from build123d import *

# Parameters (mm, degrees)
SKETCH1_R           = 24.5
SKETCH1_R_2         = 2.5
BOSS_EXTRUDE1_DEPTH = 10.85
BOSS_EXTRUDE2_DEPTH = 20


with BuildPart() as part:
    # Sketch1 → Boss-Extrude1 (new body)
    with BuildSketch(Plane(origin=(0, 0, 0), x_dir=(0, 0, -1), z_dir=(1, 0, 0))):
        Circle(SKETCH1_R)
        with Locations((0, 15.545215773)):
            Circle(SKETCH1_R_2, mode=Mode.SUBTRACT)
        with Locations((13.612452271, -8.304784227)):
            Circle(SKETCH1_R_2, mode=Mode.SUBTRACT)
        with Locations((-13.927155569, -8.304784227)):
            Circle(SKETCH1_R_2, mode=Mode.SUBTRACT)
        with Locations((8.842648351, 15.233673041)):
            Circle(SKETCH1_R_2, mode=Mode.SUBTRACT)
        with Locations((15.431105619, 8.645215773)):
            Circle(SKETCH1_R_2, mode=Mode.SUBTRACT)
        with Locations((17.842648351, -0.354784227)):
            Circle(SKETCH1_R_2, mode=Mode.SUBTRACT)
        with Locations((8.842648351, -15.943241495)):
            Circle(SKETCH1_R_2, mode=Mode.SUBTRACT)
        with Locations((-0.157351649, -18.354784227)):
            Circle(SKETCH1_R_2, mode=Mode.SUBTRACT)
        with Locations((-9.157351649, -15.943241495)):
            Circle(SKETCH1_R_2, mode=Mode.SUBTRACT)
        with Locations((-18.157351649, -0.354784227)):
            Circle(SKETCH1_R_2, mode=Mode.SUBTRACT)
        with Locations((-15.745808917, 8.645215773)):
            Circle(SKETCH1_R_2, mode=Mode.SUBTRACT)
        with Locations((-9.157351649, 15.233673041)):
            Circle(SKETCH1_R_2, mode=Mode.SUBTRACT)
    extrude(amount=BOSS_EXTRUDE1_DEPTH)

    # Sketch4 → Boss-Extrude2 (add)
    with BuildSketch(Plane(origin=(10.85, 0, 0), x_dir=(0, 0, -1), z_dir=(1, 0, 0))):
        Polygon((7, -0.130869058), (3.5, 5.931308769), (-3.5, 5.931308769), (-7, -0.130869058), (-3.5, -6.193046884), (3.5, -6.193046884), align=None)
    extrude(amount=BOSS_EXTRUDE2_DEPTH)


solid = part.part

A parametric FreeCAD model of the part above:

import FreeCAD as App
import Part
import Sketcher
Q = App.Units.Quantity


def add_polygon(sketch, points):
    """Adds a closed chain of lines whose ends are joined by coincident constraints."""
    first, n = sketch.GeometryCount, len(points)
    for a, b in zip(points, points[1:] + points[:1]):
        sketch.addGeometry(Part.LineSegment(App.Vector(*a, 0), App.Vector(*b, 0)), False)
    for i in range(n):
        sketch.addConstraint(Sketcher.Constraint("Coincident", first + i, 2, first + (i + 1) % n, 1))

doc = App.newDocument("Part")
body = doc.addObject("PartDesign::Body", "Body")

# Sketch on YZ plane
sketch1 = body.newObject("Sketcher::SketchObject", "Sketch")
sketch1.AttachmentSupport = (doc.getObject("YZ_Plane"), [""])
sketch1.MapMode = "FlatFace"
sketch1.addGeometry([
    Part.Circle(App.Vector(0, 0, 0), App.Vector(0, 0, 1), 24.5),  # 0
    Part.Circle(App.Vector(-15.943241, 9.157352, 0), App.Vector(0, 0, 1), 2.5),  # 1
    Part.Circle(App.Vector(-8.304784, 13.927156, 0), App.Vector(0, 0, 1), 2.5),  # 2
    Part.Circle(App.Vector(-18.354784, 0.157352, 0), App.Vector(0, 0, 1), 2.5),  # 3
    Part.Circle(App.Vector(-15.943241, -8.842648, 0), App.Vector(0, 0, 1), 2.5),  # 4
    Part.Circle(App.Vector(-8.304784, -13.612452, 0), App.Vector(0, 0, 1), 2.5),  # 5
    Part.Circle(App.Vector(-0.354784, 18.157352, 0), App.Vector(0, 0, 1), 2.5),  # 6
    Part.Circle(App.Vector(8.645216, 15.745809, 0), App.Vector(0, 0, 1), 2.5),  # 7
    Part.Circle(App.Vector(15.233673, 9.157352, 0), App.Vector(0, 0, 1), 2.5),  # 8
    Part.Circle(App.Vector(-0.354784, -17.842648, 0), App.Vector(0, 0, 1), 2.5),  # 9
    Part.Circle(App.Vector(15.545216, 0, 0), App.Vector(0, 0, 1), 2.5),  # 10
    Part.Circle(App.Vector(15.233673, -8.842648, 0), App.Vector(0, 0, 1), 2.5),  # 11
    Part.Circle(App.Vector(8.645216, -15.431106, 0), App.Vector(0, 0, 1), 2.5),  # 12
], False)
sketch1.addConstraint([
    Sketcher.Constraint("Coincident", 0, 3, -1, 1),
    Sketcher.Constraint("Equal", 1, 2),
    Sketcher.Constraint("Equal", 2, 3),
    Sketcher.Constraint("Equal", 3, 4),
    Sketcher.Constraint("Equal", 4, 5),
    Sketcher.Constraint("Equal", 5, 6),
    Sketcher.Constraint("Equal", 6, 7),
    Sketcher.Constraint("Equal", 7, 8),
    Sketcher.Constraint("Equal", 8, 9),
    Sketcher.Constraint("Equal", 9, 10),
    Sketcher.Constraint("Equal", 10, 11),
    Sketcher.Constraint("Equal", 11, 12),
    Sketcher.Constraint("PointOnObject", 10, 3, -1),
    Sketcher.Constraint("Horizontal", 1, 3, 8, 3),
    Sketcher.Constraint("Horizontal", 4, 3, 11, 3),
    Sketcher.Constraint("Vertical", 1, 3, 4, 3),
    Sketcher.Constraint("Vertical", 2, 3, 5, 3),
    Sketcher.Constraint("Vertical", 6, 3, 9, 3),
    Sketcher.Constraint("Vertical", 8, 3, 11, 3),
    Sketcher.Constraint("Vertical", 7, 3, 12, 3),
    Sketcher.Constraint("Diameter", 0, 49.0),
    Sketcher.Constraint("Diameter", 1, 5.0),
    Sketcher.Constraint("DistanceY", 3, 3, 1, 3, 9.0),
    Sketcher.Constraint("DistanceY", 4, 3, 3, 3, 9.0),
    Sketcher.Constraint("DistanceY", 1, 3, 6, 3, 9.0),
    Sketcher.Constraint("DistanceX", 3, 3, 6, 3, 18.0),
    Sketcher.Constraint("DistanceX", 6, 3, 7, 3, 9.0),
    Sketcher.Constraint("DistanceY", 9, 3, 4, 3, 9.0),
    Sketcher.Constraint("DistanceX", 7, 3, 10, 3, 6.9),
    Sketcher.Constraint("DistanceX", 3, 3, 2, 3, 10.05),
    Sketcher.Constraint("DistanceX", 1, 3, -1, 1, 15.943241),
    Sketcher.Constraint("DistanceY", -1, 1, 1, 3, 9.157352),
    Sketcher.Constraint("DistanceY", -1, 1, 7, 3, 15.745809),
    Sketcher.Constraint("DistanceX", 2, 3, -1, 1, 8.304784),
    Sketcher.Constraint("DistanceY", -1, 1, 2, 3, 13.927156),
    Sketcher.Constraint("DistanceY", 5, 3, -1, 1, 13.612452),
    Sketcher.Constraint("DistanceX", -1, 1, 8, 3, 15.233673),
    Sketcher.Constraint("DistanceY", 12, 3, -1, 1, 15.431106),
])
pad1 = body.newObject("PartDesign::Pad", "Pad")
pad1.Profile = sketch1
pad1.Length = 10.85

# Sketch on YZ plane
sketch2 = body.newObject("Sketcher::SketchObject", "Sketch001")
sketch2.AttachmentSupport = (doc.getObject("YZ_Plane"), [""])
sketch2.MapMode = "FlatFace"
sketch2.AttachmentOffset = App.Placement(App.Vector(0, 0, 10.85), App.Rotation())
add_polygon(sketch2, [(-0.130869, -7), (5.931309, -3.5), (5.931309, 3.5), (-0.130869, 7), (-6.193047, 3.5), (-6.193047, -3.5)])  # lines 0-5
sketch2.addConstraint([
    Sketcher.Constraint("Vertical", 1),
    Sketcher.Constraint("Vertical", 4),
    Sketcher.Constraint("Symmetric", 2, 2, 5, 2, -1),
    Sketcher.Constraint("Parallel", 0, 3),
    Sketcher.Constraint("Parallel", 2, 5),
    Sketcher.Constraint("Horizontal", 1, 2, 3, 2),
    Sketcher.Constraint("Horizontal", 0, 2, 4, 2),
    Sketcher.Constraint("DistanceY", 1, 1, 1, 2, 7.0),
    Sketcher.Constraint("Angle", 0, Q("30 deg")),
    Sketcher.Constraint("Distance", 0, 7.0),
    Sketcher.Constraint("DistanceX", -1, 1, 0, 2, 5.931309),
])
pad2 = body.newObject("PartDesign::Pad", "Pad001")
pad2.Profile = sketch2
pad2.Length = 20

doc.recompute()
